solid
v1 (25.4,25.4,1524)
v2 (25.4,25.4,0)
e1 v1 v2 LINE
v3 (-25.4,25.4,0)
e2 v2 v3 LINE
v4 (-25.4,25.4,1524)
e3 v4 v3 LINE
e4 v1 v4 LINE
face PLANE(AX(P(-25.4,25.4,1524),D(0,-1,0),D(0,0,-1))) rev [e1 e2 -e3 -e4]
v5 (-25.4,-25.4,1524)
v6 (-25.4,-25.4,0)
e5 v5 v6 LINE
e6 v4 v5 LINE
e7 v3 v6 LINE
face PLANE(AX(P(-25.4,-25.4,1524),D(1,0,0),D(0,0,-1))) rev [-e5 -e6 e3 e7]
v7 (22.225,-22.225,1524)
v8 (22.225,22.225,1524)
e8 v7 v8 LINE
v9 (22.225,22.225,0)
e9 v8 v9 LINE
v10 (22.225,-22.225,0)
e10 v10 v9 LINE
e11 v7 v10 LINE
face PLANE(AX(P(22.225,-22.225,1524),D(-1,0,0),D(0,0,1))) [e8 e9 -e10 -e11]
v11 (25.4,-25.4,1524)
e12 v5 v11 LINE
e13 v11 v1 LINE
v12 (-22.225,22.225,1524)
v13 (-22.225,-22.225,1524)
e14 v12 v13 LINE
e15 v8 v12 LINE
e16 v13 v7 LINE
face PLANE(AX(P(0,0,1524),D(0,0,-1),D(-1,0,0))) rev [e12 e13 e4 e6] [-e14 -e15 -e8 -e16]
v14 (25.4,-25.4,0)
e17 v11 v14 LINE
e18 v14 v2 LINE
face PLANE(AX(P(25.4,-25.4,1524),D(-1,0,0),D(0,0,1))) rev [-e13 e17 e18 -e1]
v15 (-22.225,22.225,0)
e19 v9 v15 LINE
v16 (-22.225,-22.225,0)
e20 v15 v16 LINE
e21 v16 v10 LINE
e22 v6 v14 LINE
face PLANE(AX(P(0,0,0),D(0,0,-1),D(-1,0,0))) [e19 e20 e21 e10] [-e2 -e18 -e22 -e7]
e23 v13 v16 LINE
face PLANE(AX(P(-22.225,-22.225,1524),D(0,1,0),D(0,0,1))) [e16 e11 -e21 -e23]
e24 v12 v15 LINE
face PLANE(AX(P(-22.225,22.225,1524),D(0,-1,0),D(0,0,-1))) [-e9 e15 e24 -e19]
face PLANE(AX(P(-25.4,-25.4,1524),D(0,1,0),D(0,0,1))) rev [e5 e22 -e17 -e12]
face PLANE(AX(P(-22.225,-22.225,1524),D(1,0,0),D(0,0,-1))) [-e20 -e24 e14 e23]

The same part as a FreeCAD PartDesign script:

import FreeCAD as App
import Part
import Sketcher
Q = App.Units.Quantity


def add_polygon(sketch, points):
    """Adds a closed chain of lines whose ends are joined by coincident constraints."""
    first, n = sketch.GeometryCount, len(points)
    for a, b in zip(points, points[1:] + points[:1]):
        sketch.addGeometry(Part.LineSegment(App.Vector(*a, 0), App.Vector(*b, 0)), False)
    for i in range(n):
        sketch.addConstraint(Sketcher.Constraint("Coincident", first + i, 2, first + (i + 1) % n, 1))

doc = App.newDocument("Part")
params = doc.addObject("Spreadsheet::Sheet", "Params")
for row, (alias, value) in enumerate([
    ("sketch1_width", "2 in"),
    ("sketch1_width2", "1.75 in"),
    ("pad1_length", "60 in"),
], start=1):
    params.set(f"A{row}", alias)
    params.set(f"B{row}", "=" + value)
    params.setAlias(f"B{row}", alias)

body = doc.addObject("PartDesign::Body", "Body")

# Sketch on XY plane
sketch1 = body.newObject("Sketcher::SketchObject", "Sketch")
sketch1.AttachmentSupport = (doc.getObject("XY_Plane"), [""])
sketch1.MapMode = "FlatFace"
add_polygon(sketch1, [(-25, 25), (-25, -25), (25, -25), (25, 25)])  # lines 0-3
add_polygon(sketch1, [(22, -22), (-22, -22), (-22, 22), (22, 22)])  # lines 4-7
sketch1.addConstraint([
    Sketcher.Constraint("Vertical", 0),
    Sketcher.Constraint("Horizontal", 1),
    Sketcher.Constraint("Vertical", 2),
    Sketcher.Constraint("Horizontal", 3),
    Sketcher.Constraint("Horizontal", 4),
    Sketcher.Constraint("Vertical", 5),
    Sketcher.Constraint("Horizontal", 6),
    Sketcher.Constraint("Vertical", 7),
    Sketcher.Constraint("Symmetric", 0, 2, 2, 2, -1, 1),
    Sketcher.Constraint("Symmetric", 4, 2, 6, 2, -1, 1),
    Sketcher.Constraint("Equal", 3, 0),
    Sketcher.Constraint("Equal", 6, 5),
    Sketcher.Constraint("DistanceX", 1, 1, 1, 2, Q("2 in")),
    Sketcher.Constraint("DistanceX", 4, 2, 4, 1, Q("1.75 in")),
])
sketch1.setExpression("Constraints[20]", "Params.sketch1_width")
sketch1.setExpression("Constraints[21]", "Params.sketch1_width2")
pad1 = body.newObject("PartDesign::Pad", "Pad")
pad1.Profile = sketch1
pad1.setExpression("Length", "Params.pad1_length")

doc.recompute()
